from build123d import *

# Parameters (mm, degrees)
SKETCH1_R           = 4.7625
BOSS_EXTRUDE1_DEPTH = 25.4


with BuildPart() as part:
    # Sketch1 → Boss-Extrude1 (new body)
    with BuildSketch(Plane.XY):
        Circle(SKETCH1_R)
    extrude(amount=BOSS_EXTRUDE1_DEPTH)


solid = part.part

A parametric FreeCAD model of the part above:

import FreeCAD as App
import Part
import Sketcher

V = App.Vector
Q = App.Units.Quantity

doc = App.newDocument("Part")
params = doc.addObject("Spreadsheet::Sheet", "Params")
for row, (alias, value) in enumerate([
    ("sketch1_diameter", "0.375 in"),
    ("pad1_length", "1 in"),
], start=1):
    params.set(f"A{row}", alias)
    params.set(f"B{row}", "=" + value)
    params.setAlias(f"B{row}", alias)

body = doc.addObject("PartDesign::Body", "Body")

sketch1 = body.newObject("Sketcher::SketchObject", "Sketch")
sketch1.AttachmentSupport = (doc.getObject("XY_Plane"), [""])
sketch1.MapMode = "FlatFace"
sketch1.addGeometry(Part.Circle(V(0, 0, 0), V(0, 0, 1), 4.7625), False)
sketch1.addConstraint([
    Sketcher.Constraint("Coincident", 0, 3, -1, 1),
    Sketcher.Constraint("Diameter", 0, Q("0.375 in")),
])
sketch1.setExpression("Constraints[1]", "Params.sketch1_diameter")
pad1 = body.newObject("PartDesign::Pad", "Pad")
pad1.Profile = sketch1
pad1.setExpression("Length", "Params.pad1_length")

doc.recompute()
